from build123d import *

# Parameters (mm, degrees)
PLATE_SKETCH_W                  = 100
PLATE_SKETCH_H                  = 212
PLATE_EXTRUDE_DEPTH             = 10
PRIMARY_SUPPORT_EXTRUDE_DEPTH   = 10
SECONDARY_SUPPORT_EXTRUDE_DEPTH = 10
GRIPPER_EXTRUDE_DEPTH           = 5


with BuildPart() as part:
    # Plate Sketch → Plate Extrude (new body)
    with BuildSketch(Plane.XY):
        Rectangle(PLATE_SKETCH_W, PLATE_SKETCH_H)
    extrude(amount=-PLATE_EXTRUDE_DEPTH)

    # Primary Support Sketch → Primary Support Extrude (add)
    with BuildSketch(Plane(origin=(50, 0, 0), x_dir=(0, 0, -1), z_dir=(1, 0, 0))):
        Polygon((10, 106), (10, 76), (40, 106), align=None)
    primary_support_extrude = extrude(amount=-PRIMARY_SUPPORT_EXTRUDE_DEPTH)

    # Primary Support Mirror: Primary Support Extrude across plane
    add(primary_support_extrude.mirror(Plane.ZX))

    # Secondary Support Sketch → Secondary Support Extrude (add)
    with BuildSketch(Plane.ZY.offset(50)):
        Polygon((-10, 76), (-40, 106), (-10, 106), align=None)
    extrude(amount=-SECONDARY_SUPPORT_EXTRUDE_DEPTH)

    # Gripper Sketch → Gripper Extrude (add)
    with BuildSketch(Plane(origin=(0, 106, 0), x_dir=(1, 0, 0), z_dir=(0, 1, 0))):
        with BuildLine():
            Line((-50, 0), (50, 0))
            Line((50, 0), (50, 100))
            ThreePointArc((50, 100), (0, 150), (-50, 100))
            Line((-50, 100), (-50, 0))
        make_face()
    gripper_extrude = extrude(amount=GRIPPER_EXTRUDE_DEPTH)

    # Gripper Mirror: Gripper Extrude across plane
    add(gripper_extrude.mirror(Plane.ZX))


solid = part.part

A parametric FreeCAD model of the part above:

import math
import FreeCAD as App
import Part
import Sketcher
from FreeCAD import Vector

doc = App.newDocument("Part")
body = doc.addObject("PartDesign::Body", "Body")

# Sketch on XY plane
sketch1 = body.newObject("Sketcher::SketchObject", "Sketch")
sketch1.AttachmentSupport = (doc.getObject("XY_Plane"), [""])
sketch1.MapMode = "FlatFace"
sketch1.addGeometry([
    Part.LineSegment(Vector(-50, 106, 0), Vector(-50, -106, 0)),
    Part.LineSegment(Vector(-50, -106, 0), Vector(50, -106, 0)),
    Part.LineSegment(Vector(50, -106, 0), Vector(50, 106, 0)),
    Part.LineSegment(Vector(50, 106, 0), Vector(-50, 106, 0)),
], False)
sketch1.addConstraint([
    Sketcher.Constraint("Coincident", 0, 2, 1, 1),
    Sketcher.Constraint("Coincident", 1, 2, 2, 1),
    Sketcher.Constraint("Coincident", 2, 2, 3, 1),
    Sketcher.Constraint("Coincident", 3, 2, 0, 1),
    Sketcher.Constraint("Vertical", 0),
    Sketcher.Constraint("Horizontal", 1),
    Sketcher.Constraint("Vertical", 2),
    Sketcher.Constraint("Horizontal", 3),
    Sketcher.Constraint("Symmetric", 0, 2, 2, 2, -1, 1),
    Sketcher.Constraint("DistanceX", 1, 1, 1, 2, 100.0),
    Sketcher.Constraint("DistanceY", 0, 2, 0, 1, 212.0),
])
pad1 = body.newObject("PartDesign::Pad", "Pad")
pad1.Profile = sketch1
pad1.Length = 10
pad1.Reversed = True

# Sketch on YZ plane
sketch2 = body.newObject("Sketcher::SketchObject", "Sketch001")
sketch2.AttachmentSupport = (doc.getObject("YZ_Plane"), [""])
sketch2.MapMode = "FlatFace"
sketch2.AttachmentOffset = App.Placement(Vector(0, 0, 50), App.Rotation())
sketch2.addGeometry([
    Part.LineSegment(Vector(106, -10, 0), Vector(76, -10, 0)),
    Part.LineSegment(Vector(76, -10, 0), Vector(106, -40, 0)),
    Part.LineSegment(Vector(106, -40, 0), Vector(106, -10, 0)),
], False)
sketch2.addConstraint([
    Sketcher.Constraint("Coincident", 0, 2, 1, 1),
    Sketcher.Constraint("Coincident", 1, 2, 2, 1),
    Sketcher.Constraint("Coincident", 2, 2, 0, 1),
    Sketcher.Constraint("Horizontal", 0),
    Sketcher.Constraint("Vertical", 2),
    Sketcher.Constraint("Equal", 0, 2),
    Sketcher.Constraint("DistanceX", 0, 2, 0, 1, 30.0),
    Sketcher.Constraint("DistanceX", -1, 1, 0, 2, 76.0),
    Sketcher.Constraint("DistanceY", 0, 2, -1, 1, 10.0),
])
pad2 = body.newObject("PartDesign::Pad", "Pad001")
pad2.Profile = sketch2
pad2.Length = 10
pad2.Reversed = True
doc.recompute()

mirrored = body.newObject("PartDesign::Mirrored", "Mirrored")
mirrored.Originals = [pad2]
mirrored.MirrorPlane = (doc.getObject("XZ_Plane"), [""])
body.Tip = mirrored

# Sketch on YZ plane
sketch3 = body.newObject("Sketcher::SketchObject", "Sketch002")
sketch3.AttachmentSupport = (doc.getObject("YZ_Plane"), [""])
sketch3.MapMode = "FlatFace"
sketch3.AttachmentOffset = App.Placement(Vector(0, 0, -50), App.Rotation())
sketch3.addGeometry([
    Part.LineSegment(Vector(106, -40, 0), Vector(76, -10, 0)),
    Part.LineSegment(Vector(76, -10, 0), Vector(106, -10, 0)),
    Part.LineSegment(Vector(106, -10, 0), Vector(106, -40, 0)),
], False)
sketch3.addConstraint([
    Sketcher.Constraint("Coincident", 0, 2, 1, 1),
    Sketcher.Constraint("Coincident", 1, 2, 2, 1),
    Sketcher.Constraint("Coincident", 2, 2, 0, 1),
    Sketcher.Constraint("Horizontal", 1),
    Sketcher.Constraint("Vertical", 2),
    Sketcher.Constraint("Equal", 1, 2),
    Sketcher.Constraint("DistanceX", 1, 1, 1, 2, 30.0),
    Sketcher.Constraint("DistanceX", -1, 1, 0, 2, 76.0),
    Sketcher.Constraint("DistanceY", 0, 2, -1, 1, 10.0),
])
pad3 = body.newObject("PartDesign::Pad", "Pad002")
pad3.Profile = sketch3
pad3.Length = 10

# Sketch on XZ plane
sketch4 = body.newObject("Sketcher::SketchObject", "Sketch003")
sketch4.AttachmentSupport = (doc.getObject("XZ_Plane"), [""])
sketch4.MapMode = "FlatFace"
sketch4.AttachmentOffset = App.Placement(Vector(0, 0, -106), App.Rotation())
sketch4.addGeometry([
    Part.LineSegment(Vector(-50, 0, 0), Vector(50, 0, 0)),
    Part.LineSegment(Vector(50, 0, 0), Vector(50, -100, 0)),
    Part.ArcOfCircle(Part.Circle(Vector(0, -100, 0), Vector(0, 0, 1), 50), math.radians(180), math.radians(360)),
    Part.LineSegment(Vector(-50, -100, 0), Vector(-50, 0, 0)),
], False)
sketch4.addConstraint([
    Sketcher.Constraint("Coincident", 0, 2, 1, 1),
    Sketcher.Constraint("Tangent", 1, 2, 2, 2),
    Sketcher.Constraint("Tangent", 2, 1, 3, 1),
    Sketcher.Constraint("Coincident", 3, 2, 0, 1),
    Sketcher.Constraint("Horizontal", 0),
    Sketcher.Constraint("Vertical", 1),
    Sketcher.Constraint("Vertical", 3),
    Sketcher.Constraint("Symmetric", 0, 2, 3, 2, -1, 1),
    Sketcher.Constraint("Equal", 0, 1),
    Sketcher.Constraint("Radius", 2, 50.0),
])
pad4 = body.newObject("PartDesign::Pad", "Pad003")
pad4.Profile = sketch4
pad4.Length = 5
pad4.Reversed = True
doc.recompute()

mirrored2 = body.newObject("PartDesign::Mirrored", "Mirrored001")
mirrored2.Originals = [pad4]
mirrored2.MirrorPlane = (doc.getObject("XZ_Plane"), [""])
body.Tip = mirrored2

doc.recompute()
